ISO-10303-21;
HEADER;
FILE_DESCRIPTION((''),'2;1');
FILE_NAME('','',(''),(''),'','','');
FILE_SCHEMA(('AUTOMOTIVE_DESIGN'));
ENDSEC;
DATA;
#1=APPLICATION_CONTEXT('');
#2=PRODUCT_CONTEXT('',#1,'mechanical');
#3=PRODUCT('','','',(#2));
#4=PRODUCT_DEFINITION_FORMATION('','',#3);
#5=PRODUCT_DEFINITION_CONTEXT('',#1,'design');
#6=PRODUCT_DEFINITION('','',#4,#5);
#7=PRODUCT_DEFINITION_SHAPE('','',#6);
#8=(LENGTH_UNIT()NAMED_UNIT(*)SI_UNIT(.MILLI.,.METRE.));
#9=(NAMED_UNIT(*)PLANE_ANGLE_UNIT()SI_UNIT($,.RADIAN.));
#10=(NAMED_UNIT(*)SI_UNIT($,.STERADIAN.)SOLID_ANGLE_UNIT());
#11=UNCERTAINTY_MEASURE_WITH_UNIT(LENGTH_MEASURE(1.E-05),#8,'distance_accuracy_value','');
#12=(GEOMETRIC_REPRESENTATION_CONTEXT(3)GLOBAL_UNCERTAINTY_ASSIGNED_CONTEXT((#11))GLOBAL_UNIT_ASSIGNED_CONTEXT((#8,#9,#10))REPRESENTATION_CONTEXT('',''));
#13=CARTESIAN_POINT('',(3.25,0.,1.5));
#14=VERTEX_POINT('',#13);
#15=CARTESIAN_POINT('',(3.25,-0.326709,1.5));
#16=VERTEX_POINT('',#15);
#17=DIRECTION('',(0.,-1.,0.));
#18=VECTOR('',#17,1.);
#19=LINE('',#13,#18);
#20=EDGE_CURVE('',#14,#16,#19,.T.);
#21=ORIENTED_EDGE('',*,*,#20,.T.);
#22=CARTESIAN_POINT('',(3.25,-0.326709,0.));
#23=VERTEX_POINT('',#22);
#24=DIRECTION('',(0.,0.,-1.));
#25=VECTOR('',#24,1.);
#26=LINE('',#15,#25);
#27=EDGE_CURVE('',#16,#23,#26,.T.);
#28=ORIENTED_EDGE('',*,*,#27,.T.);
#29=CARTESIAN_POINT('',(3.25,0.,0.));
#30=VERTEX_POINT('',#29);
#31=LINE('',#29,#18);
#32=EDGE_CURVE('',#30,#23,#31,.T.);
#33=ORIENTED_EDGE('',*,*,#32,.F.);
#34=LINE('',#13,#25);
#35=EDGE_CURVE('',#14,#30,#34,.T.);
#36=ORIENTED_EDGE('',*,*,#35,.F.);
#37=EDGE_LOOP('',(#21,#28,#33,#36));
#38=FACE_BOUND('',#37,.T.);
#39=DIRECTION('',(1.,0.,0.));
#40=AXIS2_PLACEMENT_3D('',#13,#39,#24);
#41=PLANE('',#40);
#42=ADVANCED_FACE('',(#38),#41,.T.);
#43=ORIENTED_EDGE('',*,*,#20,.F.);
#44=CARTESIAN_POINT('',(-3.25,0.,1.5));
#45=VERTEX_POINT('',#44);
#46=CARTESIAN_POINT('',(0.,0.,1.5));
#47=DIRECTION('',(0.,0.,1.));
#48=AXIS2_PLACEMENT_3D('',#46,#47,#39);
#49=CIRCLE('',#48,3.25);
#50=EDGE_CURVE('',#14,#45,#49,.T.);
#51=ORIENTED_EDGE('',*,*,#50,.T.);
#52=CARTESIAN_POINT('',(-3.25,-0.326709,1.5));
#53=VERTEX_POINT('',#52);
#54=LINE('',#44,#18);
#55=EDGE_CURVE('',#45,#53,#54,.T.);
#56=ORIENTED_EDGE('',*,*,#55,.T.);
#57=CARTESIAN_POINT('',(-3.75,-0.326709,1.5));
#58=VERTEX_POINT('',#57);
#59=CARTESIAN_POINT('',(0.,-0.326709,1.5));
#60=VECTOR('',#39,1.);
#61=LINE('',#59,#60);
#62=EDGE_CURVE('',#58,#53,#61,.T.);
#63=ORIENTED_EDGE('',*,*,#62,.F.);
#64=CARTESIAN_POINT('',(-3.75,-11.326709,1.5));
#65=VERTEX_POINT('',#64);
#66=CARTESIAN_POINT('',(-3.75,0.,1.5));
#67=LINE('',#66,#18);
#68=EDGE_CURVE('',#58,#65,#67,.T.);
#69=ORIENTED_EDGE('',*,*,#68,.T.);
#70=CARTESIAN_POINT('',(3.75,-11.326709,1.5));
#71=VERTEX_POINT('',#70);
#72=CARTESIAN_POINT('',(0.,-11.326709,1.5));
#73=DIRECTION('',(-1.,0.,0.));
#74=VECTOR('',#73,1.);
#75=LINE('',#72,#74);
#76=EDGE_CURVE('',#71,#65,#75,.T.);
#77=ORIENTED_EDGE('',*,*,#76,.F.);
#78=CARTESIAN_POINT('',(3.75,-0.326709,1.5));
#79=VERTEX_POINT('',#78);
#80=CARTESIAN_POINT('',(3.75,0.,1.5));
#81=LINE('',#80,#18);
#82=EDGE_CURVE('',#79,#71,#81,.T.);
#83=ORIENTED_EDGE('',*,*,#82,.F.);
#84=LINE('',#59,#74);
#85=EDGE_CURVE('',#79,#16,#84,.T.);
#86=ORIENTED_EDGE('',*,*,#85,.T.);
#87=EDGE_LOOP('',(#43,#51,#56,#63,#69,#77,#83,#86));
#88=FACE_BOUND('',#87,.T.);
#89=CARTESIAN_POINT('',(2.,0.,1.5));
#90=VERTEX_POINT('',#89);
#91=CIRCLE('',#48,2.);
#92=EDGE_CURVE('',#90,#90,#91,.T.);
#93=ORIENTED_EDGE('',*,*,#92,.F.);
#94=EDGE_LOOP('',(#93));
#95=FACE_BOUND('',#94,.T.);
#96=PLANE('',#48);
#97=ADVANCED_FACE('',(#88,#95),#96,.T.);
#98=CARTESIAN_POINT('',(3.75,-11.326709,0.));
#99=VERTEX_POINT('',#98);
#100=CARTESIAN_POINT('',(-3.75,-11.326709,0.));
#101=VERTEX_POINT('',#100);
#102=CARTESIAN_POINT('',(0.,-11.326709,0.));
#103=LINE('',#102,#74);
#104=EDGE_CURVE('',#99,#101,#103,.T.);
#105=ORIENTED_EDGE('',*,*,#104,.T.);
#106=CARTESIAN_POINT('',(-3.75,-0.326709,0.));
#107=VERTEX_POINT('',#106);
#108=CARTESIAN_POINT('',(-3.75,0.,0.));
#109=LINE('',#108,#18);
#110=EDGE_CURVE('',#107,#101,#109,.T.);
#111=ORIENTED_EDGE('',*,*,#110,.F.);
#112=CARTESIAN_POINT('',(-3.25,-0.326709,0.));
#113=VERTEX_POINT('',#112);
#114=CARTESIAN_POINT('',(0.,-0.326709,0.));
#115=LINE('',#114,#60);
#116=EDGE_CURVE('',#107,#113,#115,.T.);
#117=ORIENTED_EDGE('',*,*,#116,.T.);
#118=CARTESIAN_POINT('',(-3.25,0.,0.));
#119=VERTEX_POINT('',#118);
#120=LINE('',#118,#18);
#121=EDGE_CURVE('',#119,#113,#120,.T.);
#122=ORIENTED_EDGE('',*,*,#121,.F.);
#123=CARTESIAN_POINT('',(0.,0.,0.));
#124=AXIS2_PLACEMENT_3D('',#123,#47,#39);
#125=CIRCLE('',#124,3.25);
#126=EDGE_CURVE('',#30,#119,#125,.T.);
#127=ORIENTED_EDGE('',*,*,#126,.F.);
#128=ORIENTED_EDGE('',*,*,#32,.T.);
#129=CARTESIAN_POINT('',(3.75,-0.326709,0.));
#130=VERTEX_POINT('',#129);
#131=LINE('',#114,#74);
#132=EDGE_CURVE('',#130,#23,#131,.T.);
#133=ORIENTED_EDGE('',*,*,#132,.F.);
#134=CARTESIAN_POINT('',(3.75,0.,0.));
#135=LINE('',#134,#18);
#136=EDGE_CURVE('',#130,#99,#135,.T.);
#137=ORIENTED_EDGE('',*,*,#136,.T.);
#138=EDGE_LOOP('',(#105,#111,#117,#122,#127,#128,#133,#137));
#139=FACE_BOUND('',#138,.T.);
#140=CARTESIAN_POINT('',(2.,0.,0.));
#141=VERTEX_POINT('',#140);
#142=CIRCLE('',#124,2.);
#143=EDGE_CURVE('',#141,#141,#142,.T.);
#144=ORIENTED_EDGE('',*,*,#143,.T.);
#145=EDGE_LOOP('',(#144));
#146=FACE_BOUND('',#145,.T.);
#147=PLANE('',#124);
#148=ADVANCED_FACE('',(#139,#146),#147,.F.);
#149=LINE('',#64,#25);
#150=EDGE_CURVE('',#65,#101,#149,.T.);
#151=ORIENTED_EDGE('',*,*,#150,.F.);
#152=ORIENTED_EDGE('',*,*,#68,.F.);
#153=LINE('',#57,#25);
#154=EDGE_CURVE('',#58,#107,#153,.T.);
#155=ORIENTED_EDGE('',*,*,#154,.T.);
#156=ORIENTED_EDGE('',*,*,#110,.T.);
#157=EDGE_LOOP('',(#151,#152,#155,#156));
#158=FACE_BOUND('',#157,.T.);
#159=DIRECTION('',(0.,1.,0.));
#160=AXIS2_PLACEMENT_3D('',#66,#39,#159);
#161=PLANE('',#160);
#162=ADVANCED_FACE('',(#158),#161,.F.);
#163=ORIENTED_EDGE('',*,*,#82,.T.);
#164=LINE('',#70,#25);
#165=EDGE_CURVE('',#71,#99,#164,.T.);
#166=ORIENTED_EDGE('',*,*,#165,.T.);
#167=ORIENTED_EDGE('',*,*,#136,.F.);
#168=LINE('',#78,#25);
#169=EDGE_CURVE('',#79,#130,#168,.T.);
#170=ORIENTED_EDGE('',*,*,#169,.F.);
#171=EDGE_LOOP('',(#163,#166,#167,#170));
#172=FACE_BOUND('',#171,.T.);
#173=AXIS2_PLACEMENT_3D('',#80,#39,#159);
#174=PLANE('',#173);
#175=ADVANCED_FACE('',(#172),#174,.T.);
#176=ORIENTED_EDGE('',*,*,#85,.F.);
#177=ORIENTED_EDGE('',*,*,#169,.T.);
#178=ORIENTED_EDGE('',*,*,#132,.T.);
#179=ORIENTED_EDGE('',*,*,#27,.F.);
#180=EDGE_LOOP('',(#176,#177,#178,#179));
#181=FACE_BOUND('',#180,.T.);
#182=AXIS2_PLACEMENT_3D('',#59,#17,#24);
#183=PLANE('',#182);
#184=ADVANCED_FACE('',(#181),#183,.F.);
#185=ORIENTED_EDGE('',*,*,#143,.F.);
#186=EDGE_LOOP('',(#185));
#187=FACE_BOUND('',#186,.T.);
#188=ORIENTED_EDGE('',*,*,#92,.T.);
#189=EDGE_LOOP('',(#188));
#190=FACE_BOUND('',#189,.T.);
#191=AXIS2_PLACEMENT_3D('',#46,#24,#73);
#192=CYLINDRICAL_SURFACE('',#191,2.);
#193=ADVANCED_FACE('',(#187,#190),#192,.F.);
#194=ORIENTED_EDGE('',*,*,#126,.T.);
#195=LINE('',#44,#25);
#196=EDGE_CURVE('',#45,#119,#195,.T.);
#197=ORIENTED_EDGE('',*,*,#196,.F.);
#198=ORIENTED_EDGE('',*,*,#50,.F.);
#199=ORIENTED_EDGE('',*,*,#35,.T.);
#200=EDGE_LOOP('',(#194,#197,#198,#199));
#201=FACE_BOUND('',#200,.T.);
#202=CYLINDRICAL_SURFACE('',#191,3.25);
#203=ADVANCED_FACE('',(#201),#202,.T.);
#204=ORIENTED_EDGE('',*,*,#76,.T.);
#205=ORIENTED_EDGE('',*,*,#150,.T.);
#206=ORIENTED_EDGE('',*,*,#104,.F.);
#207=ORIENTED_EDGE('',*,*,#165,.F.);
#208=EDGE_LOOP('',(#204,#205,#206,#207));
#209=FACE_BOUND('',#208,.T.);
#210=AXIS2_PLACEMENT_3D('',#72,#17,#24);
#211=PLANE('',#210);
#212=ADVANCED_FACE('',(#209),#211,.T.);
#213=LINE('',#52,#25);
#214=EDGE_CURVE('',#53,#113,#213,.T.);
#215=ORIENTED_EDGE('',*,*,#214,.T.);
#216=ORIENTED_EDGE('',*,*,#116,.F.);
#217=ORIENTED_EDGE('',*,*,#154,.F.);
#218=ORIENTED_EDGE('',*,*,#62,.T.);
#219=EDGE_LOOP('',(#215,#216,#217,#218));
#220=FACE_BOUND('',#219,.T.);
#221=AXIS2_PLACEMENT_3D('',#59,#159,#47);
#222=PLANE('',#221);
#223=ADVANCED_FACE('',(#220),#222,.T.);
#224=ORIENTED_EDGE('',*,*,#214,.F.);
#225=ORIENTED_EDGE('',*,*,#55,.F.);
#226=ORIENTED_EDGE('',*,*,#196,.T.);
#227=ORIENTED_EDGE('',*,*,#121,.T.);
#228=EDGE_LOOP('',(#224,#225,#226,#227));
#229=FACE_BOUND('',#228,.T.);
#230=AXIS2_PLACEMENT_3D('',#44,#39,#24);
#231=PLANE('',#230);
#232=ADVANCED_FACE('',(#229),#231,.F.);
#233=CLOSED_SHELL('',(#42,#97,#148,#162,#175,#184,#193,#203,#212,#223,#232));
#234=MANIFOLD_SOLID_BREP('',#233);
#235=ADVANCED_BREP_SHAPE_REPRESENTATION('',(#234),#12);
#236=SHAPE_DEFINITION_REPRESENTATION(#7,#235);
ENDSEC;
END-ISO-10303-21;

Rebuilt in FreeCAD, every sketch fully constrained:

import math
import FreeCAD as App
import Part
import Sketcher

V = App.Vector
Q = App.Units.Quantity

doc = App.newDocument("Part")
body = doc.addObject("PartDesign::Body", "Body")

sketch1 = body.newObject("Sketcher::SketchObject", "Sketch")
sketch1.AttachmentSupport = (doc.getObject("XY_Plane"), [""])
sketch1.MapMode = "FlatFace"
sketch1.addGeometry([
    Part.LineSegment(V(3.25, -0.33, 0), V(3.25, 0, 0)),
    Part.ArcOfCircle(Part.Circle(V(0, 0, 0), V(0, 0, 1), 3.25), math.radians(0), math.radians(180)),
    Part.LineSegment(V(-3.25, 0, 0), V(-3.25, -0.33, 0)),
    Part.LineSegment(V(-3.25, -0.33, 0), V(-3.75, -0.33, 0)),
    Part.LineSegment(V(-3.75, -0.33, 0), V(-3.75, -11.33, 0)),
    Part.LineSegment(V(-3.75, -11.33, 0), V(3.75, -11.33, 0)),
    Part.LineSegment(V(3.75, -11.33, 0), V(3.75, -0.33, 0)),
    Part.LineSegment(V(3.75, -0.33, 0), V(3.25, -0.33, 0)),
    Part.Circle(V(0, 0, 0), V(0, 0, 1), 2),
], False)
sketch1.addConstraint([
    Sketcher.Constraint("Tangent", 0, 2, 1, 1),
    Sketcher.Constraint("Tangent", 1, 2, 2, 1),
    Sketcher.Constraint("Coincident", 2, 2, 3, 1),
    Sketcher.Constraint("Coincident", 3, 2, 4, 1),
    Sketcher.Constraint("Coincident", 4, 2, 5, 1),
    Sketcher.Constraint("Coincident", 5, 2, 6, 1),
    Sketcher.Constraint("Coincident", 6, 2, 7, 1),
    Sketcher.Constraint("Coincident", 7, 2, 0, 1),
    Sketcher.Constraint("Vertical", 0),
    Sketcher.Constraint("Vertical", 2),
    Sketcher.Constraint("Horizontal", 3),
    Sketcher.Constraint("Vertical", 4),
    Sketcher.Constraint("Horizontal", 5),
    Sketcher.Constraint("Vertical", 6),
    Sketcher.Constraint("Horizontal", 7),
    Sketcher.Constraint("Coincident", 1, 3, -1, 1),
    Sketcher.Constraint("Coincident", 8, 3, -1, 1),
    Sketcher.Constraint("Symmetric", 3, 2, 6, 2, -2),
    Sketcher.Constraint("Diameter", 8, Q("4 mm")),
    Sketcher.Constraint("DistanceY", 4, 2, 4, 1, Q("11 mm")),
    Sketcher.Constraint("Radius", 1, Q("3.25 mm")),
    Sketcher.Constraint("DistanceX", 3, 2, 3, 1, Q("0.5 mm")),
    Sketcher.Constraint("DistanceY", 0, 1, 0, 2, Q("0.326709 mm")),
])
pad1 = body.newObject("PartDesign::Pad", "Pad")
pad1.Profile = sketch1
pad1.Length = 1.5

doc.recompute()
